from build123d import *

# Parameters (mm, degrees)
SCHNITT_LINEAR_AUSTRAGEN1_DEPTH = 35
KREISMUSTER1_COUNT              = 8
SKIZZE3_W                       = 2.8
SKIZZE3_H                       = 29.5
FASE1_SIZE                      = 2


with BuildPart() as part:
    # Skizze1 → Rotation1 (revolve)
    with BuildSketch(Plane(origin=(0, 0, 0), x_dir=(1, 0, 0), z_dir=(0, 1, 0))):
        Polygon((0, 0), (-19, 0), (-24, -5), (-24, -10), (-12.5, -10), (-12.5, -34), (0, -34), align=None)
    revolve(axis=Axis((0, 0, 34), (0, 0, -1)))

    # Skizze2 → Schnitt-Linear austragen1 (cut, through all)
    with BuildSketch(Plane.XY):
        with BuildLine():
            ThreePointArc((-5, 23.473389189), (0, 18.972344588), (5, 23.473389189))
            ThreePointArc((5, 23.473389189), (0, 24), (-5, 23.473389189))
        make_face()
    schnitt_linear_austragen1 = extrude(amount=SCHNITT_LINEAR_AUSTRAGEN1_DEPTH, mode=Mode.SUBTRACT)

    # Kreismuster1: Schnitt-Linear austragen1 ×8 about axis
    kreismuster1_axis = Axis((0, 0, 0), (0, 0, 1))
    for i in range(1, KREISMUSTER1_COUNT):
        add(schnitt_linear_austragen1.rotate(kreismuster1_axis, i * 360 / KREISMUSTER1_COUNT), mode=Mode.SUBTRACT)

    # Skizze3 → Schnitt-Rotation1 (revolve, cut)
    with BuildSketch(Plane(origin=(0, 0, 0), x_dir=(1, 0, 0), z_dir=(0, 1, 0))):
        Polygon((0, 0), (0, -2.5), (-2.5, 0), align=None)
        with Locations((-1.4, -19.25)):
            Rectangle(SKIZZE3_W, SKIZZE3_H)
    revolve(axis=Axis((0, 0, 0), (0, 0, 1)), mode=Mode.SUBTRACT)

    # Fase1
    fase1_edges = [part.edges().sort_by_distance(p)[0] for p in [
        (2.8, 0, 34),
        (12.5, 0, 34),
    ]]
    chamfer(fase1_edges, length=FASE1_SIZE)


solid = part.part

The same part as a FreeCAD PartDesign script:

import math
import FreeCAD as App
import Part
import Sketcher
from FreeCAD import Vector
Q = App.Units.Quantity


def edges_at(feature, points):
    """Names of the edges that pass closest to the given points."""
    edges = feature.Shape.Edges
    near = lambda p: min(range(len(edges)), key=lambda i: edges[i].distToShape(Part.Vertex(*p))[0])
    return sorted({f"Edge{near(p) + 1}" for p in points})

doc = App.newDocument("Part")
params = doc.addObject("Spreadsheet::Sheet", "Params")
for row, (alias, value) in enumerate([
    ("sketch1_width", "19 mm"),
    ("sketch1_height", "5 mm"),
    ("sketch1_height2", "24 mm"),
    ("sketch1_height3", "34 mm"),
    ("sketch1_width2", "11.5 mm"),
    ("revolution_angle", "360 deg"),
    ("sketch2_radius", "24 mm"),
    ("sketch3_width", "2.5 mm"),
    ("sketch3_width2", "2.8 mm"),
    ("sketch3_height", "29.5 mm"),
    ("groove_angle", "360 deg"),
    ("chamfer_size", "2 mm"),
], start=1):
    params.set(f"A{row}", alias)
    params.set(f"B{row}", "=" + value)
    params.setAlias(f"B{row}", alias)

body = doc.addObject("PartDesign::Body", "Body")

sketch1 = doc.addObject("Sketcher::SketchObject", "Sketch")
body.addObject(sketch1)
sketch1.AttachmentSupport = (doc.XZ_Plane, [""])
sketch1.MapMode = "FlatFace"
sketch1.addGeometry([
    Part.LineSegment(Vector(0, 0, 0), Vector(-19, 0, 0)),
    Part.LineSegment(Vector(-19, 0, 0), Vector(-24, 5, 0)),
    Part.LineSegment(Vector(-24, 5, 0), Vector(-24, 10, 0)),
    Part.LineSegment(Vector(-24, 10, 0), Vector(-12, 10, 0)),
    Part.LineSegment(Vector(-12, 10, 0), Vector(-12, 34, 0)),
    Part.LineSegment(Vector(-12, 34, 0), Vector(0, 34, 0)),
    Part.LineSegment(Vector(0, 34, 0), Vector(0, 0, 0)),
], False)
sketch1.addConstraint([
    Sketcher.Constraint("Coincident", 0, 2, 1, 1),
    Sketcher.Constraint("Coincident", 1, 2, 2, 1),
    Sketcher.Constraint("Coincident", 2, 2, 3, 1),
    Sketcher.Constraint("Coincident", 3, 2, 4, 1),
    Sketcher.Constraint("Coincident", 4, 2, 5, 1),
    Sketcher.Constraint("Coincident", 5, 2, 6, 1),
    Sketcher.Constraint("Coincident", 6, 2, 0, 1),
    Sketcher.Constraint("Horizontal", 0),
    Sketcher.Constraint("Vertical", 2),
    Sketcher.Constraint("Horizontal", 3),
    Sketcher.Constraint("Vertical", 4),
    Sketcher.Constraint("Horizontal", 5),
    Sketcher.Constraint("Vertical", 6),
    Sketcher.Constraint("Coincident", 6, 2, -1, 1),
    Sketcher.Constraint("DistanceX", 0, 2, 0, 1, 19.0),
    Sketcher.Constraint("DistanceY", 2, 1, 2, 2, 5.0),
    Sketcher.Constraint("DistanceY", 4, 1, 4, 2, 24.0),
    Sketcher.Constraint("DistanceY", 6, 2, 6, 1, 34.0),
    Sketcher.Constraint("Angle", 1, Q("135 deg")),
    Sketcher.Constraint("DistanceX", 3, 1, 3, 2, 11.5),
])
sketch1.setExpression("Constraints[14]", "Params.sketch1_width")
sketch1.setExpression("Constraints[15]", "Params.sketch1_height")
sketch1.setExpression("Constraints[16]", "Params.sketch1_height2")
sketch1.setExpression("Constraints[17]", "Params.sketch1_height3")
sketch1.setExpression("Constraints[19]", "Params.sketch1_width2")
revolution = doc.addObject("PartDesign::Revolution", "Revolution")
body.addObject(revolution)
revolution.Profile = sketch1
revolution.ReferenceAxis = (sketch1, ["V_Axis"])
revolution.setExpression("Angle", "Params.revolution_angle")

sketch2 = doc.addObject("Sketcher::SketchObject", "Sketch001")
body.addObject(sketch2)
sketch2.AttachmentSupport = (doc.XY_Plane, [""])
sketch2.MapMode = "FlatFace"
sketch2.addGeometry([
    Part.ArcOfCircle(Part.Circle(Vector(0, 24, 0), Vector(0, 0, 1), 5), math.radians(-174), math.radians(-6)),
    Part.ArcOfCircle(Part.Circle(Vector(0, 0, 0), Vector(0, 0, 1), 24), math.radians(78), math.radians(102)),
], False)
sketch2.addConstraint([
    Sketcher.Constraint("Coincident", 0, 1, 1, 2),
    Sketcher.Constraint("Coincident", 1, 1, 0, 2),
    Sketcher.Constraint("Coincident", 1, 3, -1, 1),
    Sketcher.Constraint("PointOnObject", 0, 3, -2),
    Sketcher.Constraint("Radius", 1, 24.0),
    Sketcher.Constraint("DistanceY", -1, 1, 0, 3, 24.0),
    Sketcher.Constraint("DistanceX", 0, 1, -1, 1, 5.0),
])
sketch2.setExpression("Constraints[4]", "Params.sketch2_radius")
pocket1 = doc.addObject("PartDesign::Pocket", "Pocket")
body.addObject(pocket1)
pocket1.Profile = sketch2
pocket1.Type = "ThroughAll"
pocket1.Reversed = True
doc.recompute()

polarpattern = doc.addObject("PartDesign::PolarPattern", "PolarPattern")
body.addObject(polarpattern)
polarpattern.Originals = [pocket1]
polarpattern.Axis = (doc.Z_Axis, [""])
polarpattern.Angle = 360
polarpattern.Occurrences = 8
body.Tip = polarpattern

sketch3 = doc.addObject("Sketcher::SketchObject", "Sketch002")
body.addObject(sketch3)
sketch3.AttachmentSupport = (doc.XZ_Plane, [""])
sketch3.MapMode = "FlatFace"
sketch3.addGeometry([
    Part.LineSegment(Vector(0, 2.5, 0), Vector(0, 0, 0)),
    Part.LineSegment(Vector(0, 0, 0), Vector(-2.5, 0, 0)),
    Part.LineSegment(Vector(-2.5, 0, 0), Vector(0, 2.5, 0)),
    Part.LineSegment(Vector(-2.8, 4.5, 0), Vector(-2.8, 34, 0)),
    Part.LineSegment(Vector(-2.8, 34, 0), Vector(0, 34, 0)),
    Part.LineSegment(Vector(0, 34, 0), Vector(0, 4.5, 0)),
    Part.LineSegment(Vector(0, 4.5, 0), Vector(-2.8, 4.5, 0)),
], False)
sketch3.addConstraint([
    Sketcher.Constraint("Coincident", 0, 2, 1, 1),
    Sketcher.Constraint("Coincident", 1, 2, 2, 1),
    Sketcher.Constraint("Coincident", 2, 2, 0, 1),
    Sketcher.Constraint("Coincident", 3, 2, 4, 1),
    Sketcher.Constraint("Coincident", 4, 2, 5, 1),
    Sketcher.Constraint("Coincident", 5, 2, 6, 1),
    Sketcher.Constraint("Coincident", 6, 2, 3, 1),
    Sketcher.Constraint("Vertical", 0),
    Sketcher.Constraint("Horizontal", 1),
    Sketcher.Constraint("Vertical", 3),
    Sketcher.Constraint("Horizontal", 4),
    Sketcher.Constraint("Vertical", 5),
    Sketcher.Constraint("Horizontal", 6),
    Sketcher.Constraint("Coincident", 0, 2, -1, 1),
    Sketcher.Constraint("PointOnObject", 4, 2, -2),
    Sketcher.Constraint("Equal", 1, 0),
    Sketcher.Constraint("DistanceX", 1, 2, 1, 1, 2.5),
    Sketcher.Constraint("DistanceX", 4, 1, 4, 2, 2.8),
    Sketcher.Constraint("DistanceY", 3, 1, 3, 2, 29.5),
    Sketcher.Constraint("DistanceY", -1, 1, 3, 2, 34.0),
])
sketch3.setExpression("Constraints[16]", "Params.sketch3_width")
sketch3.setExpression("Constraints[17]", "Params.sketch3_width2")
sketch3.setExpression("Constraints[18]", "Params.sketch3_height")
groove = doc.addObject("PartDesign::Groove", "Groove")
body.addObject(groove)
groove.Profile = sketch3
groove.ReferenceAxis = (sketch3, ["V_Axis"])
groove.setExpression("Angle", "Params.groove_angle")
doc.recompute()

chamfer = doc.addObject("PartDesign::Chamfer", "Chamfer")
body.addObject(chamfer)
chamfer.Base = (groove, edges_at(groove, [(2.8, 0, 34), (12.5, 0, 34)]))
chamfer.setExpression("Size", "Params.chamfer_size")

doc.recompute()
